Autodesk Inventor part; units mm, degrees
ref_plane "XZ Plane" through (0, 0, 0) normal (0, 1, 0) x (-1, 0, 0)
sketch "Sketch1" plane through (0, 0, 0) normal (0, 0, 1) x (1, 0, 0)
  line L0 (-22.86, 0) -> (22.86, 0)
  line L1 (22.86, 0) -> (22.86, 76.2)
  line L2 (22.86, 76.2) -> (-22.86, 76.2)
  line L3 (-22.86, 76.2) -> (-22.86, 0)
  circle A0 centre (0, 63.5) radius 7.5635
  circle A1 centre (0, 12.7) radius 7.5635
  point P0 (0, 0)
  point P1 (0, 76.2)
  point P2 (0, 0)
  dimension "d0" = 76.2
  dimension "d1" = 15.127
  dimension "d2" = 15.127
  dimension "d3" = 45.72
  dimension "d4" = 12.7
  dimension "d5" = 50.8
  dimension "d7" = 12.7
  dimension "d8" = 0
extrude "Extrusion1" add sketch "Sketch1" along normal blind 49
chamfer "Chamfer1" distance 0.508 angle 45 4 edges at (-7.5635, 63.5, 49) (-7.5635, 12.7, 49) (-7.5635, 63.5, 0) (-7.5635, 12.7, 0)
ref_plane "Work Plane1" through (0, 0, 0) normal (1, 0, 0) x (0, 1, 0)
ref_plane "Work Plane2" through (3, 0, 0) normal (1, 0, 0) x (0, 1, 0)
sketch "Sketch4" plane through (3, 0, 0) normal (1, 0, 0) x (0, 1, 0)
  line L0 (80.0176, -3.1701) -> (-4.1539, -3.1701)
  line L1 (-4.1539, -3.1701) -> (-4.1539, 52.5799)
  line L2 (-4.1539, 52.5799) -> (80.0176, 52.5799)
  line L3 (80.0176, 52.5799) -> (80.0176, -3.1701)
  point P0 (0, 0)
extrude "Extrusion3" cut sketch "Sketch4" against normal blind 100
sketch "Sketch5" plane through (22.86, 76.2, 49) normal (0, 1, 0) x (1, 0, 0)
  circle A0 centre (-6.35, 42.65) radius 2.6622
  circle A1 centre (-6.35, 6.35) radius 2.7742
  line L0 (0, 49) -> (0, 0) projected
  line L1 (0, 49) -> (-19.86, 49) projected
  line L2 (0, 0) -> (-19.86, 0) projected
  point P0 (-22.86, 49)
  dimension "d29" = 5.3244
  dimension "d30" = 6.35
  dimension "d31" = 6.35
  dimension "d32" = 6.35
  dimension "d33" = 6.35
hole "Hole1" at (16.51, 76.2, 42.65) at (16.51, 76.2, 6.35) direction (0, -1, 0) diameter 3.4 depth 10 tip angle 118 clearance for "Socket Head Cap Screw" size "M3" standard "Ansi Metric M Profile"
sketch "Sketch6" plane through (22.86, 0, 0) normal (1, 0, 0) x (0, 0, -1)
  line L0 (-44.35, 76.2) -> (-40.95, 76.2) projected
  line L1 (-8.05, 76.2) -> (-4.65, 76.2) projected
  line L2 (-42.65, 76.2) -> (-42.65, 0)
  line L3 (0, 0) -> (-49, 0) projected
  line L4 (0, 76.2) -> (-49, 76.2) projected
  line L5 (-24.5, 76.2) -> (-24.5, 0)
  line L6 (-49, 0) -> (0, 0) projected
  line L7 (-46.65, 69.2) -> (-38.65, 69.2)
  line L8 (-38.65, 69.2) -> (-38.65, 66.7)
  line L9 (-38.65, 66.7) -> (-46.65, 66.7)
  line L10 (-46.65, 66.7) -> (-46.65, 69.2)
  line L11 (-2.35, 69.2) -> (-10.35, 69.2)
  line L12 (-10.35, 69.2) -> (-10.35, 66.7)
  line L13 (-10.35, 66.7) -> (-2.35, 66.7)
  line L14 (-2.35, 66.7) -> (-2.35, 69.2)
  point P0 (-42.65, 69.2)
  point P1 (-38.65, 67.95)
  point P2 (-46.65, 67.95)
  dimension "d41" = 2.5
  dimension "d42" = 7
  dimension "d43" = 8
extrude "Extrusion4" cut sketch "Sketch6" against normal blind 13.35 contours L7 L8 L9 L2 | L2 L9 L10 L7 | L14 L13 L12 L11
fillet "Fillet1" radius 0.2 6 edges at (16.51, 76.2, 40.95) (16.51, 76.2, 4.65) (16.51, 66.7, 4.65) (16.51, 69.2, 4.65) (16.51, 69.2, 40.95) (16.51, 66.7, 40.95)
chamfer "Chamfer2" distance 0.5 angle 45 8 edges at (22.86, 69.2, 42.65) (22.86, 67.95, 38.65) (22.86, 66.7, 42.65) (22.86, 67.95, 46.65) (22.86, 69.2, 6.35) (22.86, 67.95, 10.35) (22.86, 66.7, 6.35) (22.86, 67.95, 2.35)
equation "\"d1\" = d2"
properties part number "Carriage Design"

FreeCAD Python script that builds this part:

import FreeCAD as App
import Part
import Sketcher
from FreeCAD import Vector


def edges_at(feature, points):
    """Names of the edges that pass closest to the given points."""
    edges = feature.Shape.Edges
    near = lambda p: min(range(len(edges)), key=lambda i: edges[i].distToShape(Part.Vertex(*p))[0])
    return sorted({f"Edge{near(p) + 1}" for p in points})


def add_polygon(sketch, points):
    """Adds a closed chain of lines whose ends are joined by coincident constraints."""
    first, n = sketch.GeometryCount, len(points)
    for a, b in zip(points, points[1:] + points[:1]):
        sketch.addGeometry(Part.LineSegment(App.Vector(*a, 0), App.Vector(*b, 0)), False)
    for i in range(n):
        sketch.addConstraint(Sketcher.Constraint("Coincident", first + i, 2, first + (i + 1) % n, 1))

doc = App.newDocument("Part")
body = doc.addObject("PartDesign::Body", "Body")

sketch1 = body.newObject("Sketcher::SketchObject", "Sketch")
sketch1.AttachmentSupport = (doc.getObject("XY_Plane"), [""])
sketch1.MapMode = "FlatFace"
add_polygon(sketch1, [(-23, 76), (-23, 0), (23, 0), (23, 76)])
sketch1.addGeometry(Part.Circle(Vector(0, 13, 0), Vector(0, 0, 1), 8), False)
sketch1.addGeometry(Part.Circle(Vector(0, 64, 0), Vector(0, 0, 1), 8), False)
sketch1.addConstraint([
    Sketcher.Constraint("Vertical", 0),
    Sketcher.Constraint("Horizontal", 1),
    Sketcher.Constraint("Vertical", 2),
    Sketcher.Constraint("Horizontal", 3),
    Sketcher.Constraint("Equal", 4, 5),
    Sketcher.Constraint("Symmetric", 0, 2, 1, 2, -1, 1),
    Sketcher.Constraint("PointOnObject", 4, 3, -2),
    Sketcher.Constraint("PointOnObject", 5, 3, -2),
    Sketcher.Constraint("Diameter", 4, 15.127),
    Sketcher.Constraint("DistanceY", 0, 2, 0, 1, 76.2),
    Sketcher.Constraint("DistanceX", 1, 1, 1, 2, 45.72),
    Sketcher.Constraint("DistanceY", -1, 1, 4, 3, 12.7),
    Sketcher.Constraint("DistanceY", 4, 3, 5, 3, 50.8),
])
pad1 = body.newObject("PartDesign::Pad", "Pad")
pad1.Profile = sketch1
pad1.Length = 49
doc.recompute()

chamfer = body.newObject("PartDesign::Chamfer", "Chamfer")
chamfer.Base = (pad1, edges_at(pad1, [
    (-7.564, 63.5, 49),
    (-7.564, 12.7, 49),
    (-7.564, 63.5, 0),
    (-7.564, 12.7, 0),
]))
chamfer.Size = 0.508

sketch2 = body.newObject("Sketcher::SketchObject", "Sketch001")
sketch2.AttachmentSupport = (doc.getObject("YZ_Plane"), [""])
sketch2.MapMode = "FlatFace"
sketch2.AttachmentOffset = App.Placement(Vector(0, 0, 3), App.Rotation())
add_polygon(sketch2, [(-4, -3), (80, -3), (80, 53), (-4, 53)])
sketch2.addConstraint([
    Sketcher.Constraint("Horizontal", 0),
    Sketcher.Constraint("Vertical", 1),
    Sketcher.Constraint("Horizontal", 2),
    Sketcher.Constraint("Vertical", 3),
    Sketcher.Constraint("DistanceY", 1, 1, 1, 2, 55.75),
    Sketcher.Constraint("DistanceY", 0, 2, -1, 1, 3.17),
    Sketcher.Constraint("DistanceX", 0, 1, 0, 2, 84.1715),
    Sketcher.Constraint("DistanceX", 2, 2, -1, 1, 4.154),
])
pocket1 = body.newObject("PartDesign::Pocket", "Pocket")
pocket1.Profile = sketch2
pocket1.Length = 100

sketch3 = body.newObject("Sketcher::SketchObject", "Sketch002")
sketch3.AttachmentSupport = (doc.getObject("XZ_Plane"), [""])
sketch3.MapMode = "FlatFace"
sketch3.AttachmentOffset = App.Placement(Vector(0, 0, -76.2), App.Rotation())
sketch3.addGeometry([
    Part.Circle(Vector(16.5, 42.6, 0), Vector(0, 0, 1), 1.7),
    Part.Circle(Vector(16.5, 6.3, 0), Vector(0, 0, 1), 1.7),
], False)
sketch3.addConstraint([
    Sketcher.Constraint("Equal", 0, 1),
    Sketcher.Constraint("Vertical", 0, 3, 1, 3),
    Sketcher.Constraint("Diameter", 0, 3.4),
    Sketcher.Constraint("DistanceY", 1, 3, 0, 3, 36.3),
    Sketcher.Constraint("DistanceX", -1, 1, 0, 3, 16.51),
    Sketcher.Constraint("DistanceY", -1, 1, 0, 3, 42.65),
])
doc.recompute()
hole = body.newObject("PartDesign::Hole", "Hole")
hole.Profile = sketch3
hole.ThreadType = "None"
hole.Diameter = 3.4
hole.DepthType = "Dimension"
hole.Depth = 10
hole.DrillPoint = "Angled"
hole.DrillPointAngle = 118
hole.Reversed = True

sketch4 = body.newObject("Sketcher::SketchObject", "Sketch003")
sketch4.AttachmentSupport = (doc.getObject("YZ_Plane"), [""])
sketch4.MapMode = "FlatFace"
sketch4.AttachmentOffset = App.Placement(Vector(0, 0, 22.86), App.Rotation())
add_polygon(sketch4, [(69.2, 38.6), (69.2, 46.6), (66.7, 46.6), (66.7, 38.6)])
add_polygon(sketch4, [(66.7, 2.4), (69.2, 2.4), (69.2, 10.3), (66.7, 10.3)])
sketch4.addConstraint([
    Sketcher.Constraint("Vertical", 0),
    Sketcher.Constraint("Horizontal", 1),
    Sketcher.Constraint("Vertical", 2),
    Sketcher.Constraint("Horizontal", 3),
    Sketcher.Constraint("Horizontal", 4),
    Sketcher.Constraint("Vertical", 5),
    Sketcher.Constraint("Horizontal", 6),
    Sketcher.Constraint("Vertical", 7),
    Sketcher.Constraint("Vertical", 3, 2, 4, 2),
    Sketcher.Constraint("Vertical", 2, 2, 6, 2),
    Sketcher.Constraint("Equal", 2, 5),
    Sketcher.Constraint("DistanceY", 0, 1, 0, 2, 8.0),
    Sketcher.Constraint("DistanceX", 1, 2, 1, 1, 2.5),
    Sketcher.Constraint("DistanceX", -1, 1, 0, 2, 69.2),
    Sketcher.Constraint("DistanceY", 4, 2, 3, 2, 36.3),
    Sketcher.Constraint("DistanceY", -1, 1, 0, 2, 46.65),
])
pocket2 = body.newObject("PartDesign::Pocket", "Pocket001")
pocket2.Profile = sketch4
pocket2.Length = 13.35
doc.recompute()

fillet = body.newObject("PartDesign::Fillet", "Fillet")
fillet.Base = (pocket2, edges_at(pocket2, [
    (16.51, 76.2, 40.95),
    (16.51, 76.2, 4.65),
    (16.51, 66.7, 4.65),
    (16.51, 69.2, 4.65),
    (16.51, 69.2, 40.95),
    (16.51, 66.7, 40.95),
]))
fillet.Radius = 0.2
doc.recompute()

chamfer2 = body.newObject("PartDesign::Chamfer", "Chamfer001")
chamfer2.Base = (fillet, edges_at(fillet, [
    (22.86, 69.2, 42.65),
    (22.86, 67.95, 38.65),
    (22.86, 66.7, 42.65),
    (22.86, 67.95, 46.65),
    (22.86, 69.2, 6.35),
    (22.86, 67.95, 10.35),
    (22.86, 66.7, 6.35),
    (22.86, 67.95, 2.35),
]))
chamfer2.Size = 0.5

doc.recompute()
